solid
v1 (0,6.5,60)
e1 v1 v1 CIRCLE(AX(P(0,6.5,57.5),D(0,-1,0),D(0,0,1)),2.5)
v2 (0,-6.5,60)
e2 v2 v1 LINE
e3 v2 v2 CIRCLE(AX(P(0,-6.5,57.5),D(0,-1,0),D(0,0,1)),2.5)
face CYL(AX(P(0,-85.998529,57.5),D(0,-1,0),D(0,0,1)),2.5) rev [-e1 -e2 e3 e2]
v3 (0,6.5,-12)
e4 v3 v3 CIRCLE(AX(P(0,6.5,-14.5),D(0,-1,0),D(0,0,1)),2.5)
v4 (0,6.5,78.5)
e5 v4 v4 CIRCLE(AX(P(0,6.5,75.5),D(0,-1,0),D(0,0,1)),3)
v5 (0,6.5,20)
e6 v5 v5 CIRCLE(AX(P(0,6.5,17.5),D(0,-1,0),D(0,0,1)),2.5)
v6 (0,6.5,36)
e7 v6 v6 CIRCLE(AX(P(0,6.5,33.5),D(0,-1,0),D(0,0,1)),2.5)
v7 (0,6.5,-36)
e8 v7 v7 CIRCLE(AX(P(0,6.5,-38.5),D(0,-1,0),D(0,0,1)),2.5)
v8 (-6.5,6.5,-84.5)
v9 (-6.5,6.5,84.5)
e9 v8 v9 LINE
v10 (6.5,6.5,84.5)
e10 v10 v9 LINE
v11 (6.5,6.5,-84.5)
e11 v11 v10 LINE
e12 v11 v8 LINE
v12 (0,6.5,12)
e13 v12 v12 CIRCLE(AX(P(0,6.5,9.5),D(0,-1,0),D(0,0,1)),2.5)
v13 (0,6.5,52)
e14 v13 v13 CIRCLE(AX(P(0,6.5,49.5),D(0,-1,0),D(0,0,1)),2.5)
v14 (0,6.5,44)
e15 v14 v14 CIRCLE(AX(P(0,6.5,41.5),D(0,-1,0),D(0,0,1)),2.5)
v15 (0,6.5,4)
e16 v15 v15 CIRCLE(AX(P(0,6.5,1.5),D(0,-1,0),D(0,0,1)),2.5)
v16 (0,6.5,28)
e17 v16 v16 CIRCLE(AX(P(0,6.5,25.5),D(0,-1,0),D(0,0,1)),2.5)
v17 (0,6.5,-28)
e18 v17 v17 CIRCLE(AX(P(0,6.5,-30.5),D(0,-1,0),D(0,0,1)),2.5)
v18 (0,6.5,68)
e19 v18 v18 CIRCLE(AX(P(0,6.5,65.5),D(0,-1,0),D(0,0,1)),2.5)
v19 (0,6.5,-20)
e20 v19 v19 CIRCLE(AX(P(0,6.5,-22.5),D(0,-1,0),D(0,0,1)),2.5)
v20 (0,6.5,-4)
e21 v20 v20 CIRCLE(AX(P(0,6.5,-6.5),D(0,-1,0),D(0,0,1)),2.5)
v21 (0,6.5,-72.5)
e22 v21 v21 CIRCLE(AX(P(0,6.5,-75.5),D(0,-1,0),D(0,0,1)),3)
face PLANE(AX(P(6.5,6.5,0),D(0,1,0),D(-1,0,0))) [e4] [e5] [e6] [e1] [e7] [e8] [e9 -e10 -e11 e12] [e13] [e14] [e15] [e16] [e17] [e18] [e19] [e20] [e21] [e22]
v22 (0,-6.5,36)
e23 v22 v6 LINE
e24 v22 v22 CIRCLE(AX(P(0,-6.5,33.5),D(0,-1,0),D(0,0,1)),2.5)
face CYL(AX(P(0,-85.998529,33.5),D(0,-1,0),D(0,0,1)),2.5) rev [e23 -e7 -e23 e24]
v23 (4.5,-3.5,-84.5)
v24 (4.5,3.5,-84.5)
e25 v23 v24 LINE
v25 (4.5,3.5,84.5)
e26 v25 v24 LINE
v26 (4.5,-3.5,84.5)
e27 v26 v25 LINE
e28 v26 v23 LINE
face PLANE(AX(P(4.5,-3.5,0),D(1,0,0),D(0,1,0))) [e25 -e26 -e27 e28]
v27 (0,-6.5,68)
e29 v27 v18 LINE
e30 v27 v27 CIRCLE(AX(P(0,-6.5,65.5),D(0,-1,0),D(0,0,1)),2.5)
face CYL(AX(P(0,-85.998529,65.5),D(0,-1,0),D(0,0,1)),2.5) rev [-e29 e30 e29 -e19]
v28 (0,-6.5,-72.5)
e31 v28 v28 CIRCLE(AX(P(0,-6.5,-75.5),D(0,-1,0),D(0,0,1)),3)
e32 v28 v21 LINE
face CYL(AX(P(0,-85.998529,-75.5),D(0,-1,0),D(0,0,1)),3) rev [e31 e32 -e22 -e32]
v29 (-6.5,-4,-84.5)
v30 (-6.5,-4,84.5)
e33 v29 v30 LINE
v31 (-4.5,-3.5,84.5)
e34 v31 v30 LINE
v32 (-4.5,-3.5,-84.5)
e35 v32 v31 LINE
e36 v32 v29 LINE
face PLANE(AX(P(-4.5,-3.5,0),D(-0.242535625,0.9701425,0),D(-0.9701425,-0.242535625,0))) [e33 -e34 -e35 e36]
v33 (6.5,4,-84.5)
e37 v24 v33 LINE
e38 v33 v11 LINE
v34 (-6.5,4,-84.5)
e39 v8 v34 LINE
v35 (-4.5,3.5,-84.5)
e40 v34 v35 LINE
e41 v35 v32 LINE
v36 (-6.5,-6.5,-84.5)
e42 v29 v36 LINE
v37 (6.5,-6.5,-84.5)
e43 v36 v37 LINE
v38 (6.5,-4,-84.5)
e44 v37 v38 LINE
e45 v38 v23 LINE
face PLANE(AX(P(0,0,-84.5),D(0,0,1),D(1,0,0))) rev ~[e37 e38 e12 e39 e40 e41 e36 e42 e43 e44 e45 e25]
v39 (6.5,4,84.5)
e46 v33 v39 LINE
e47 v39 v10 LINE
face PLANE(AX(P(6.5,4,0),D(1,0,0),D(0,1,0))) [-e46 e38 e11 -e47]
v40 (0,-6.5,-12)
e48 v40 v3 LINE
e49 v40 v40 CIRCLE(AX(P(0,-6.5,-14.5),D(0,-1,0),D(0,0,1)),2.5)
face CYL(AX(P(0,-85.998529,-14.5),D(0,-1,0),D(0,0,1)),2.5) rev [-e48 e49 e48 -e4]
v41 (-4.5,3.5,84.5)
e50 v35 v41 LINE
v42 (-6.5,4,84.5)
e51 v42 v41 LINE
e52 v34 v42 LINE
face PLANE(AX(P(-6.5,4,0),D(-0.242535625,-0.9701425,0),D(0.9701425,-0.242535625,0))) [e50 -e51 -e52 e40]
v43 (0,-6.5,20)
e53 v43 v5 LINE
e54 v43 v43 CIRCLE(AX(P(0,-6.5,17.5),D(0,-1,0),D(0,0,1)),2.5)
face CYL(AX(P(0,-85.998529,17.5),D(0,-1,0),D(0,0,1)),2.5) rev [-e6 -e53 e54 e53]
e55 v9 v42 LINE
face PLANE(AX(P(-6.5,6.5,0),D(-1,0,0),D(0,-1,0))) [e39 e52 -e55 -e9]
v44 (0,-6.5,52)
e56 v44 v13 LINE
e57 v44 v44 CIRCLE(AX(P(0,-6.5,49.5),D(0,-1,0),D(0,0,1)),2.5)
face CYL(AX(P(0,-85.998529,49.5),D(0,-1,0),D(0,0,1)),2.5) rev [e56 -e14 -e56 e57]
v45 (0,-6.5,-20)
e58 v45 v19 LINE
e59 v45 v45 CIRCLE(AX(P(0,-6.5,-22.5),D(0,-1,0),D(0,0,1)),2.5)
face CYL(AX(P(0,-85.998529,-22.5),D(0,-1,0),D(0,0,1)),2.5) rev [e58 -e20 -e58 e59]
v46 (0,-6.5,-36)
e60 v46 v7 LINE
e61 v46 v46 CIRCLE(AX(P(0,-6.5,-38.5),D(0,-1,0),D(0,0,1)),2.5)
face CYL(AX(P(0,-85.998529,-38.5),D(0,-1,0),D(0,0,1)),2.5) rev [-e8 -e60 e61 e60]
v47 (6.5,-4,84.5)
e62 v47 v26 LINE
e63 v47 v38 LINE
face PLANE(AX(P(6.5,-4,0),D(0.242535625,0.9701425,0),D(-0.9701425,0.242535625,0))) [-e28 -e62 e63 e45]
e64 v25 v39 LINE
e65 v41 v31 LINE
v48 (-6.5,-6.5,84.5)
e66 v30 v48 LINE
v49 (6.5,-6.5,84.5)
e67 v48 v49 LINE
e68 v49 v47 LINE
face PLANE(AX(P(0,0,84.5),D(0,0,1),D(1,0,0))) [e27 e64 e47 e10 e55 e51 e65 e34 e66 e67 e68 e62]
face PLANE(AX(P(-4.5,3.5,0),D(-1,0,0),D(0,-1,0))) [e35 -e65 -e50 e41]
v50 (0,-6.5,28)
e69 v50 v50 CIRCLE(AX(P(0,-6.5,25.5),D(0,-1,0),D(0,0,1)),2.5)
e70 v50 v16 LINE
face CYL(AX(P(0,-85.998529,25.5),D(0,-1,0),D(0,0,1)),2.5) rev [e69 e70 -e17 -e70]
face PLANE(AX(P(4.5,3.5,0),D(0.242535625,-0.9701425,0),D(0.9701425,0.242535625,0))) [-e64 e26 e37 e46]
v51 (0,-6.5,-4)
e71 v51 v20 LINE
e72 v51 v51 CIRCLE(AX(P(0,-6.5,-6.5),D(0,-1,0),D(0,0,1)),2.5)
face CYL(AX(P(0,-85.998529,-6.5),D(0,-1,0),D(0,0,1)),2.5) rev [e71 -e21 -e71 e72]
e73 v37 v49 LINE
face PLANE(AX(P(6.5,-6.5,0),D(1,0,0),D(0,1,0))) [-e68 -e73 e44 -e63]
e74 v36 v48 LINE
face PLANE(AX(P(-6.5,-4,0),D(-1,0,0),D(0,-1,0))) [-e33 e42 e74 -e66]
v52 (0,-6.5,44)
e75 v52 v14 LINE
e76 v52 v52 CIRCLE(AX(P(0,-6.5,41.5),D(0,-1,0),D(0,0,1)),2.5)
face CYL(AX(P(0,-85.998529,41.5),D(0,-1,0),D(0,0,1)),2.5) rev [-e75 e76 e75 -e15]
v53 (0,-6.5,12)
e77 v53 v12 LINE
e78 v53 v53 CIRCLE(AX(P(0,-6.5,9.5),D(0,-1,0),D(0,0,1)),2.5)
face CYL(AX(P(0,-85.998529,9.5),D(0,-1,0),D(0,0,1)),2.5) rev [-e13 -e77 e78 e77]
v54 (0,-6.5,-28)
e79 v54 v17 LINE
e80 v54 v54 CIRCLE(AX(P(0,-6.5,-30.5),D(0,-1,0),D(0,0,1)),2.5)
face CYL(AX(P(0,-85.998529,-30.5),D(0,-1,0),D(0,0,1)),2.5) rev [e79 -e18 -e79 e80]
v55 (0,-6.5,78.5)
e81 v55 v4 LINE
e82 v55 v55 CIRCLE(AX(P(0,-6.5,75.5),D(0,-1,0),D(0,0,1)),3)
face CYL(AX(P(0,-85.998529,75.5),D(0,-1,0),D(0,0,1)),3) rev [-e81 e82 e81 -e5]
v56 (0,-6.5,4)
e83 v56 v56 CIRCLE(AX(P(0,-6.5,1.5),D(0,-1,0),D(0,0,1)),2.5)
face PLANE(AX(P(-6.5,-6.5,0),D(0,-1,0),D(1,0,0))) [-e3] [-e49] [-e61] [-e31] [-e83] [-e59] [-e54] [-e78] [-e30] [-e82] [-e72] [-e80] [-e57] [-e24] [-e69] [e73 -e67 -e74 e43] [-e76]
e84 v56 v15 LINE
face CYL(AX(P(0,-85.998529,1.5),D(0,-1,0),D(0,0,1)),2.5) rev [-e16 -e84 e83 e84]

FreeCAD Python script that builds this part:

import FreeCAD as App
import Part
import Sketcher

doc = App.newDocument("Part")
params = doc.addObject("Spreadsheet::Sheet", "Params")
for row, (alias, value) in enumerate([
    ("sketch1_width", "13 mm"),
    ("sketch1_height", "7 mm"),
    ("sketch1_height2", "2.5 mm"),
    ("pad1_length", "169 mm"),
    ("sketch2_diameter", "6 mm"),
    ("sketch2_diameter2", "5 mm"),
], start=1):
    params.set(f"A{row}", alias)
    params.set(f"B{row}", "=" + value)
    params.setAlias(f"B{row}", alias)

body = doc.addObject("PartDesign::Body", "Body")

sketch1 = body.newObject("Sketcher::SketchObject", "Sketch")
sketch1.AttachmentSupport = (doc.getObject("XY_Plane"), [""])
sketch1.MapMode = "FlatFace"
sketch1.addGeometry([
    Part.LineSegment(App.Vector(4.5, 3.5, 0), App.Vector(6.5, 4, 0)),
    Part.LineSegment(App.Vector(6.5, 4, 0), App.Vector(6.5, 6.5, 0)),
    Part.LineSegment(App.Vector(6.5, 6.5, 0), App.Vector(-6.5, 6.5, 0)),
    Part.LineSegment(App.Vector(-6.5, 6.5, 0), App.Vector(-6.5, 4, 0)),
    Part.LineSegment(App.Vector(-6.5, 4, 0), App.Vector(-4.5, 3.5, 0)),
    Part.LineSegment(App.Vector(-4.5, 3.5, 0), App.Vector(-4.5, -3.5, 0)),
    Part.LineSegment(App.Vector(-4.5, -3.5, 0), App.Vector(-6.5, -4, 0)),
    Part.LineSegment(App.Vector(-6.5, -4, 0), App.Vector(-6.5, -6.5, 0)),
    Part.LineSegment(App.Vector(-6.5, -6.5, 0), App.Vector(6.5, -6.5, 0)),
    Part.LineSegment(App.Vector(6.5, -6.5, 0), App.Vector(6.5, -4, 0)),
    Part.LineSegment(App.Vector(6.5, -4, 0), App.Vector(4.5, -3.5, 0)),
    Part.LineSegment(App.Vector(4.5, -3.5, 0), App.Vector(4.5, 3.5, 0)),
], False)
sketch1.addConstraint([
    Sketcher.Constraint("Coincident", 0, 2, 1, 1),
    Sketcher.Constraint("Coincident", 1, 2, 2, 1),
    Sketcher.Constraint("Coincident", 2, 2, 3, 1),
    Sketcher.Constraint("Coincident", 3, 2, 4, 1),
    Sketcher.Constraint("Coincident", 4, 2, 5, 1),
    Sketcher.Constraint("Coincident", 5, 2, 6, 1),
    Sketcher.Constraint("Coincident", 6, 2, 7, 1),
    Sketcher.Constraint("Coincident", 7, 2, 8, 1),
    Sketcher.Constraint("Coincident", 8, 2, 9, 1),
    Sketcher.Constraint("Coincident", 9, 2, 10, 1),
    Sketcher.Constraint("Coincident", 10, 2, 11, 1),
    Sketcher.Constraint("Coincident", 11, 2, 0, 1),
    Sketcher.Constraint("Vertical", 1),
    Sketcher.Constraint("Horizontal", 2),
    Sketcher.Constraint("Vertical", 3),
    Sketcher.Constraint("Vertical", 5),
    Sketcher.Constraint("Vertical", 7),
    Sketcher.Constraint("Horizontal", 8),
    Sketcher.Constraint("Vertical", 9),
    Sketcher.Constraint("Vertical", 11),
    Sketcher.Constraint("Symmetric", 0, 2, 6, 2, -1, 1),
    Sketcher.Constraint("Symmetric", 2, 2, 8, 2, -1, 1),
    Sketcher.Constraint("Symmetric", 4, 2, 10, 2, -1, 1),
    Sketcher.Constraint("Symmetric", 0, 2, 3, 2, -2),
    Sketcher.Constraint("Parallel", 0, 6),
    Sketcher.Constraint("Parallel", 4, 10),
    Sketcher.Constraint("Horizontal", 5, 2, 10, 2),
    Sketcher.Constraint("DistanceX", 2, 2, 2, 1, 13.0),
    Sketcher.Constraint("DistanceY", 5, 2, 5, 1, 7.0),
    Sketcher.Constraint("DistanceY", 1, 1, 1, 2, 2.5),
    Sketcher.Constraint("DistanceY", -1, 1, 0, 2, 4.0),
    Sketcher.Constraint("DistanceX", 3, 2, 4, 2, 2.0),
])
sketch1.setExpression("Constraints[27]", "Params.sketch1_width")
sketch1.setExpression("Constraints[28]", "Params.sketch1_height")
sketch1.setExpression("Constraints[29]", "Params.sketch1_height2")
pad1 = body.newObject("PartDesign::Pad", "Pad")
pad1.Profile = sketch1
pad1.setExpression("Length", "Params.pad1_length")
pad1.Midplane = True

sketch2 = body.newObject("Sketcher::SketchObject", "Sketch001")
sketch2.AttachmentSupport = (doc.getObject("XZ_Plane"), [""])
sketch2.MapMode = "FlatFace"
sketch2.addGeometry([
    Part.Circle(App.Vector(0, -75.5, 0), App.Vector(0, 0, 1), 3),
    Part.Circle(App.Vector(0, 75.5, 0), App.Vector(0, 0, 1), 3),
    Part.Circle(App.Vector(0, 65.5, 0), App.Vector(0, 0, 1), 2.5),
    Part.Circle(App.Vector(0, 57.5, 0), App.Vector(0, 0, 1), 2.5),
    Part.Circle(App.Vector(0, 49.5, 0), App.Vector(0, 0, 1), 2.5),
    Part.Circle(App.Vector(0, 41.5, 0), App.Vector(0, 0, 1), 2.5),
    Part.Circle(App.Vector(0, 33.5, 0), App.Vector(0, 0, 1), 2.5),
    Part.Circle(App.Vector(0, 25.5, 0), App.Vector(0, 0, 1), 2.5),
    Part.Circle(App.Vector(0, 17.5, 0), App.Vector(0, 0, 1), 2.5),
    Part.Circle(App.Vector(0, 9.5, 0), App.Vector(0, 0, 1), 2.5),
    Part.Circle(App.Vector(0, 1.5, 0), App.Vector(0, 0, 1), 2.5),
    Part.Circle(App.Vector(0, -6.5, 0), App.Vector(0, 0, 1), 2.5),
    Part.Circle(App.Vector(0, -14.5, 0), App.Vector(0, 0, 1), 2.5),
    Part.Circle(App.Vector(0, -22.5, 0), App.Vector(0, 0, 1), 2.5),
    Part.Circle(App.Vector(0, -30.5, 0), App.Vector(0, 0, 1), 2.5),
    Part.Circle(App.Vector(0, -38.5, 0), App.Vector(0, 0, 1), 2.5),
], False)
sketch2.addConstraint([
    Sketcher.Constraint("Equal", 0, 1),
    Sketcher.Constraint("Equal", 2, 3),
    Sketcher.Constraint("Equal", 3, 4),
    Sketcher.Constraint("Equal", 4, 5),
    Sketcher.Constraint("Equal", 5, 6),
    Sketcher.Constraint("Equal", 6, 7),
    Sketcher.Constraint("Equal", 7, 8),
    Sketcher.Constraint("Equal", 8, 9),
    Sketcher.Constraint("Equal", 9, 10),
    Sketcher.Constraint("Equal", 10, 11),
    Sketcher.Constraint("Equal", 11, 12),
    Sketcher.Constraint("Equal", 12, 13),
    Sketcher.Constraint("Equal", 13, 14),
    Sketcher.Constraint("Equal", 14, 15),
    Sketcher.Constraint("Symmetric", 0, 3, 1, 3, -1, 1),
    Sketcher.Constraint("PointOnObject", 0, 3, -2),
    Sketcher.Constraint("PointOnObject", 2, 3, -2),
    Sketcher.Constraint("PointOnObject", 3, 3, -2),
    Sketcher.Constraint("PointOnObject", 4, 3, -2),
    Sketcher.Constraint("PointOnObject", 5, 3, -2),
    Sketcher.Constraint("PointOnObject", 6, 3, -2),
    Sketcher.Constraint("PointOnObject", 7, 3, -2),
    Sketcher.Constraint("PointOnObject", 8, 3, -2),
    Sketcher.Constraint("PointOnObject", 9, 3, -2),
    Sketcher.Constraint("PointOnObject", 10, 3, -2),
    Sketcher.Constraint("PointOnObject", 11, 3, -2),
    Sketcher.Constraint("PointOnObject", 12, 3, -2),
    Sketcher.Constraint("PointOnObject", 13, 3, -2),
    Sketcher.Constraint("PointOnObject", 14, 3, -2),
    Sketcher.Constraint("PointOnObject", 15, 3, -2),
    Sketcher.Constraint("Diameter", 0, 6.0),
    Sketcher.Constraint("Diameter", 2, 5.0),
    Sketcher.Constraint("DistanceY", 0, 3, 1, 3, 151.0),
    Sketcher.Constraint("DistanceY", 2, 3, 1, 3, 10.0),
    Sketcher.Constraint("DistanceY", 3, 3, 2, 3, 8.0),
    Sketcher.Constraint("DistanceY", 4, 3, 3, 3, 8.0),
    Sketcher.Constraint("DistanceY", 5, 3, 4, 3, 8.0),
    Sketcher.Constraint("DistanceY", 6, 3, 5, 3, 8.0),
    Sketcher.Constraint("DistanceY", 7, 3, 6, 3, 8.0),
    Sketcher.Constraint("DistanceY", 8, 3, 7, 3, 8.0),
    Sketcher.Constraint("DistanceY", 9, 3, 8, 3, 8.0),
    Sketcher.Constraint("DistanceY", 10, 3, 9, 3, 8.0),
    Sketcher.Constraint("DistanceY", 11, 3, 10, 3, 8.0),
    Sketcher.Constraint("DistanceY", 12, 3, 11, 3, 8.0),
    Sketcher.Constraint("DistanceY", 13, 3, 12, 3, 8.0),
    Sketcher.Constraint("DistanceY", 14, 3, 13, 3, 8.0),
    Sketcher.Constraint("DistanceY", 15, 3, 14, 3, 8.0),
])
sketch2.setExpression("Constraints[30]", "Params.sketch2_diameter")
sketch2.setExpression("Constraints[31]", "Params.sketch2_diameter2")
pocket1 = body.newObject("PartDesign::Pocket", "Pocket")
pocket1.Profile = sketch2
pocket1.Type = "ThroughAll"
pocket1.Midplane = True

doc.recompute()
